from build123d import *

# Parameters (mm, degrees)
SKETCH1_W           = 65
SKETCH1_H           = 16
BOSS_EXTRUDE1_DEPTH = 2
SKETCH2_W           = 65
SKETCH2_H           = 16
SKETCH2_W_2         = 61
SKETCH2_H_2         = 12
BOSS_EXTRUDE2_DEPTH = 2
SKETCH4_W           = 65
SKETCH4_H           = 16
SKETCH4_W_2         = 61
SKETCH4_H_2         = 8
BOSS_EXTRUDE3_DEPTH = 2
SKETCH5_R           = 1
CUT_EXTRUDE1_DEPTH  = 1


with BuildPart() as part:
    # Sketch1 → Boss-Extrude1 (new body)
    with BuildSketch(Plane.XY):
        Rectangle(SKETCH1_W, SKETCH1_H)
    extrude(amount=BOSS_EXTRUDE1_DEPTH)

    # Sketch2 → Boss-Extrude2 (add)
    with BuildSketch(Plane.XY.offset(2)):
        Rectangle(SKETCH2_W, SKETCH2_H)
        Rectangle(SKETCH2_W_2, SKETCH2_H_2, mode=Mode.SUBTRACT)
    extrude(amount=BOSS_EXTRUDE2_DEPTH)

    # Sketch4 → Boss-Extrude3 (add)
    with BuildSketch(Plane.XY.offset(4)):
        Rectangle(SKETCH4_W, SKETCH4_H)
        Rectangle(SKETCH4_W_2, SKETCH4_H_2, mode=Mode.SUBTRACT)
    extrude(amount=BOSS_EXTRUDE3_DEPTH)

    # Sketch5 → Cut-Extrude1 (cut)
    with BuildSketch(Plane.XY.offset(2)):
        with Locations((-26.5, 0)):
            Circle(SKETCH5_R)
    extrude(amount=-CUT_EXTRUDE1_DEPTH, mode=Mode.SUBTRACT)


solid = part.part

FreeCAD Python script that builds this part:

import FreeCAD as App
import Part
import Sketcher
Q = App.Units.Quantity

doc = App.newDocument("Part")
body = doc.addObject("PartDesign::Body", "Body")

sketch1 = body.newObject("Sketcher::SketchObject", "Sketch")
sketch1.AttachmentSupport = (doc.getObject("XY_Plane"), [""])
sketch1.MapMode = "FlatFace"
sketch1.addGeometry(Part.LineSegment(App.Vector(-32, 8, 0), App.Vector(-32, -8, 0)), False)
sketch1.addGeometry(Part.LineSegment(App.Vector(-32, -8, 0), App.Vector(32, -8, 0)), False)
sketch1.addGeometry(Part.LineSegment(App.Vector(32, -8, 0), App.Vector(32, 8, 0)), False)
sketch1.addGeometry(Part.LineSegment(App.Vector(32, 8, 0), App.Vector(-32, 8, 0)), False)
sketch1.addConstraint(Sketcher.Constraint("Coincident", 0, 2, 1, 1))
sketch1.addConstraint(Sketcher.Constraint("Coincident", 1, 2, 2, 1))
sketch1.addConstraint(Sketcher.Constraint("Coincident", 2, 2, 3, 1))
sketch1.addConstraint(Sketcher.Constraint("Coincident", 3, 2, 0, 1))
sketch1.addConstraint(Sketcher.Constraint("Vertical", 0))
sketch1.addConstraint(Sketcher.Constraint("Horizontal", 1))
sketch1.addConstraint(Sketcher.Constraint("Vertical", 2))
sketch1.addConstraint(Sketcher.Constraint("Horizontal", 3))
sketch1.addConstraint(Sketcher.Constraint("Symmetric", 0, 2, 2, 2, -1, 1))
sketch1.addConstraint(Sketcher.Constraint("DistanceX", 1, 1, 1, 2, Q("65 mm")))
sketch1.addConstraint(Sketcher.Constraint("DistanceY", 0, 2, 0, 1, Q("16 mm")))
pad1 = body.newObject("PartDesign::Pad", "Pad")
pad1.Profile = sketch1
pad1.Length = 2

sketch2 = body.newObject("Sketcher::SketchObject", "Sketch001")
sketch2.AttachmentSupport = (doc.getObject("XY_Plane"), [""])
sketch2.MapMode = "FlatFace"
sketch2.AttachmentOffset = App.Placement(App.Vector(0, 0, 2), App.Rotation())
sketch2.addGeometry(Part.LineSegment(App.Vector(-32, 8, 0), App.Vector(-32, -8, 0)), False)
sketch2.addGeometry(Part.LineSegment(App.Vector(-32, -8, 0), App.Vector(32, -8, 0)), False)
sketch2.addGeometry(Part.LineSegment(App.Vector(32, -8, 0), App.Vector(32, 8, 0)), False)
sketch2.addGeometry(Part.LineSegment(App.Vector(32, 8, 0), App.Vector(-32, 8, 0)), False)
sketch2.addGeometry(Part.LineSegment(App.Vector(30, -6, 0), App.Vector(-30, -6, 0)), False)
sketch2.addGeometry(Part.LineSegment(App.Vector(-30, -6, 0), App.Vector(-30, 6, 0)), False)
sketch2.addGeometry(Part.LineSegment(App.Vector(-30, 6, 0), App.Vector(30, 6, 0)), False)
sketch2.addGeometry(Part.LineSegment(App.Vector(30, 6, 0), App.Vector(30, -6, 0)), False)
sketch2.addConstraint(Sketcher.Constraint("Coincident", 0, 2, 1, 1))
sketch2.addConstraint(Sketcher.Constraint("Coincident", 1, 2, 2, 1))
sketch2.addConstraint(Sketcher.Constraint("Coincident", 2, 2, 3, 1))
sketch2.addConstraint(Sketcher.Constraint("Coincident", 3, 2, 0, 1))
sketch2.addConstraint(Sketcher.Constraint("Coincident", 4, 2, 5, 1))
sketch2.addConstraint(Sketcher.Constraint("Coincident", 5, 2, 6, 1))
sketch2.addConstraint(Sketcher.Constraint("Coincident", 6, 2, 7, 1))
sketch2.addConstraint(Sketcher.Constraint("Coincident", 7, 2, 4, 1))
sketch2.addConstraint(Sketcher.Constraint("Vertical", 0))
sketch2.addConstraint(Sketcher.Constraint("Horizontal", 1))
sketch2.addConstraint(Sketcher.Constraint("Vertical", 2))
sketch2.addConstraint(Sketcher.Constraint("Horizontal", 3))
sketch2.addConstraint(Sketcher.Constraint("Horizontal", 4))
sketch2.addConstraint(Sketcher.Constraint("Vertical", 5))
sketch2.addConstraint(Sketcher.Constraint("Horizontal", 6))
sketch2.addConstraint(Sketcher.Constraint("Vertical", 7))
sketch2.addConstraint(Sketcher.Constraint("Symmetric", 0, 2, 2, 2, -1, 1))
sketch2.addConstraint(Sketcher.Constraint("Symmetric", 4, 2, 6, 2, -1, 1))
sketch2.addConstraint(Sketcher.Constraint("DistanceX", 1, 1, 1, 2, Q("65 mm")))
sketch2.addConstraint(Sketcher.Constraint("DistanceX", 4, 2, 4, 1, Q("61 mm")))
sketch2.addConstraint(Sketcher.Constraint("DistanceY", 0, 2, 0, 1, Q("16 mm")))
sketch2.addConstraint(Sketcher.Constraint("DistanceY", 5, 1, 5, 2, Q("12 mm")))
pad2 = body.newObject("PartDesign::Pad", "Pad001")
pad2.Profile = sketch2
pad2.Length = 2

sketch3 = body.newObject("Sketcher::SketchObject", "Sketch002")
sketch3.AttachmentSupport = (doc.getObject("XY_Plane"), [""])
sketch3.MapMode = "FlatFace"
sketch3.AttachmentOffset = App.Placement(App.Vector(0, 0, 4), App.Rotation())
sketch3.addGeometry(Part.LineSegment(App.Vector(-32, 8, 0), App.Vector(-32, -8, 0)), False)
sketch3.addGeometry(Part.LineSegment(App.Vector(-32, -8, 0), App.Vector(32, -8, 0)), False)
sketch3.addGeometry(Part.LineSegment(App.Vector(32, -8, 0), App.Vector(32, 8, 0)), False)
sketch3.addGeometry(Part.LineSegment(App.Vector(32, 8, 0), App.Vector(-32, 8, 0)), False)
sketch3.addGeometry(Part.LineSegment(App.Vector(30, -4, 0), App.Vector(-30, -4, 0)), False)
sketch3.addGeometry(Part.LineSegment(App.Vector(-30, -4, 0), App.Vector(-30, 4, 0)), False)
sketch3.addGeometry(Part.LineSegment(App.Vector(-30, 4, 0), App.Vector(30, 4, 0)), False)
sketch3.addGeometry(Part.LineSegment(App.Vector(30, 4, 0), App.Vector(30, -4, 0)), False)
sketch3.addConstraint(Sketcher.Constraint("Coincident", 0, 2, 1, 1))
sketch3.addConstraint(Sketcher.Constraint("Coincident", 1, 2, 2, 1))
sketch3.addConstraint(Sketcher.Constraint("Coincident", 2, 2, 3, 1))
sketch3.addConstraint(Sketcher.Constraint("Coincident", 3, 2, 0, 1))
sketch3.addConstraint(Sketcher.Constraint("Coincident", 4, 2, 5, 1))
sketch3.addConstraint(Sketcher.Constraint("Coincident", 5, 2, 6, 1))
sketch3.addConstraint(Sketcher.Constraint("Coincident", 6, 2, 7, 1))
sketch3.addConstraint(Sketcher.Constraint("Coincident", 7, 2, 4, 1))
sketch3.addConstraint(Sketcher.Constraint("Vertical", 0))
sketch3.addConstraint(Sketcher.Constraint("Horizontal", 1))
sketch3.addConstraint(Sketcher.Constraint("Vertical", 2))
sketch3.addConstraint(Sketcher.Constraint("Horizontal", 3))
sketch3.addConstraint(Sketcher.Constraint("Horizontal", 4))
sketch3.addConstraint(Sketcher.Constraint("Vertical", 5))
sketch3.addConstraint(Sketcher.Constraint("Horizontal", 6))
sketch3.addConstraint(Sketcher.Constraint("Vertical", 7))
sketch3.addConstraint(Sketcher.Constraint("Symmetric", 0, 2, 2, 2, -1, 1))
sketch3.addConstraint(Sketcher.Constraint("Symmetric", 4, 2, 6, 2, -1, 1))
sketch3.addConstraint(Sketcher.Constraint("DistanceX", 1, 1, 1, 2, Q("65 mm")))
sketch3.addConstraint(Sketcher.Constraint("DistanceX", 4, 2, 4, 1, Q("61 mm")))
sketch3.addConstraint(Sketcher.Constraint("DistanceY", 0, 2, 0, 1, Q("16 mm")))
sketch3.addConstraint(Sketcher.Constraint("DistanceY", 5, 1, 5, 2, Q("8 mm")))
pad3 = body.newObject("PartDesign::Pad", "Pad002")
pad3.Profile = sketch3
pad3.Length = 2

sketch4 = body.newObject("Sketcher::SketchObject", "Sketch003")
sketch4.AttachmentSupport = (doc.getObject("XY_Plane"), [""])
sketch4.MapMode = "FlatFace"
sketch4.AttachmentOffset = App.Placement(App.Vector(0, 0, 2), App.Rotation())
sketch4.addGeometry(Part.Circle(App.Vector(-26.5, 0, 0), App.Vector(0, 0, 1), 1), False)
sketch4.addConstraint(Sketcher.Constraint("PointOnObject", 0, 3, -1))
sketch4.addConstraint(Sketcher.Constraint("Diameter", 0, Q("2 mm")))
sketch4.addConstraint(Sketcher.Constraint("DistanceX", 0, 3, -1, 1, Q("26.5 mm")))
pocket1 = body.newObject("PartDesign::Pocket", "Pocket")
pocket1.Profile = sketch4
pocket1.Length = 1

doc.recompute()
